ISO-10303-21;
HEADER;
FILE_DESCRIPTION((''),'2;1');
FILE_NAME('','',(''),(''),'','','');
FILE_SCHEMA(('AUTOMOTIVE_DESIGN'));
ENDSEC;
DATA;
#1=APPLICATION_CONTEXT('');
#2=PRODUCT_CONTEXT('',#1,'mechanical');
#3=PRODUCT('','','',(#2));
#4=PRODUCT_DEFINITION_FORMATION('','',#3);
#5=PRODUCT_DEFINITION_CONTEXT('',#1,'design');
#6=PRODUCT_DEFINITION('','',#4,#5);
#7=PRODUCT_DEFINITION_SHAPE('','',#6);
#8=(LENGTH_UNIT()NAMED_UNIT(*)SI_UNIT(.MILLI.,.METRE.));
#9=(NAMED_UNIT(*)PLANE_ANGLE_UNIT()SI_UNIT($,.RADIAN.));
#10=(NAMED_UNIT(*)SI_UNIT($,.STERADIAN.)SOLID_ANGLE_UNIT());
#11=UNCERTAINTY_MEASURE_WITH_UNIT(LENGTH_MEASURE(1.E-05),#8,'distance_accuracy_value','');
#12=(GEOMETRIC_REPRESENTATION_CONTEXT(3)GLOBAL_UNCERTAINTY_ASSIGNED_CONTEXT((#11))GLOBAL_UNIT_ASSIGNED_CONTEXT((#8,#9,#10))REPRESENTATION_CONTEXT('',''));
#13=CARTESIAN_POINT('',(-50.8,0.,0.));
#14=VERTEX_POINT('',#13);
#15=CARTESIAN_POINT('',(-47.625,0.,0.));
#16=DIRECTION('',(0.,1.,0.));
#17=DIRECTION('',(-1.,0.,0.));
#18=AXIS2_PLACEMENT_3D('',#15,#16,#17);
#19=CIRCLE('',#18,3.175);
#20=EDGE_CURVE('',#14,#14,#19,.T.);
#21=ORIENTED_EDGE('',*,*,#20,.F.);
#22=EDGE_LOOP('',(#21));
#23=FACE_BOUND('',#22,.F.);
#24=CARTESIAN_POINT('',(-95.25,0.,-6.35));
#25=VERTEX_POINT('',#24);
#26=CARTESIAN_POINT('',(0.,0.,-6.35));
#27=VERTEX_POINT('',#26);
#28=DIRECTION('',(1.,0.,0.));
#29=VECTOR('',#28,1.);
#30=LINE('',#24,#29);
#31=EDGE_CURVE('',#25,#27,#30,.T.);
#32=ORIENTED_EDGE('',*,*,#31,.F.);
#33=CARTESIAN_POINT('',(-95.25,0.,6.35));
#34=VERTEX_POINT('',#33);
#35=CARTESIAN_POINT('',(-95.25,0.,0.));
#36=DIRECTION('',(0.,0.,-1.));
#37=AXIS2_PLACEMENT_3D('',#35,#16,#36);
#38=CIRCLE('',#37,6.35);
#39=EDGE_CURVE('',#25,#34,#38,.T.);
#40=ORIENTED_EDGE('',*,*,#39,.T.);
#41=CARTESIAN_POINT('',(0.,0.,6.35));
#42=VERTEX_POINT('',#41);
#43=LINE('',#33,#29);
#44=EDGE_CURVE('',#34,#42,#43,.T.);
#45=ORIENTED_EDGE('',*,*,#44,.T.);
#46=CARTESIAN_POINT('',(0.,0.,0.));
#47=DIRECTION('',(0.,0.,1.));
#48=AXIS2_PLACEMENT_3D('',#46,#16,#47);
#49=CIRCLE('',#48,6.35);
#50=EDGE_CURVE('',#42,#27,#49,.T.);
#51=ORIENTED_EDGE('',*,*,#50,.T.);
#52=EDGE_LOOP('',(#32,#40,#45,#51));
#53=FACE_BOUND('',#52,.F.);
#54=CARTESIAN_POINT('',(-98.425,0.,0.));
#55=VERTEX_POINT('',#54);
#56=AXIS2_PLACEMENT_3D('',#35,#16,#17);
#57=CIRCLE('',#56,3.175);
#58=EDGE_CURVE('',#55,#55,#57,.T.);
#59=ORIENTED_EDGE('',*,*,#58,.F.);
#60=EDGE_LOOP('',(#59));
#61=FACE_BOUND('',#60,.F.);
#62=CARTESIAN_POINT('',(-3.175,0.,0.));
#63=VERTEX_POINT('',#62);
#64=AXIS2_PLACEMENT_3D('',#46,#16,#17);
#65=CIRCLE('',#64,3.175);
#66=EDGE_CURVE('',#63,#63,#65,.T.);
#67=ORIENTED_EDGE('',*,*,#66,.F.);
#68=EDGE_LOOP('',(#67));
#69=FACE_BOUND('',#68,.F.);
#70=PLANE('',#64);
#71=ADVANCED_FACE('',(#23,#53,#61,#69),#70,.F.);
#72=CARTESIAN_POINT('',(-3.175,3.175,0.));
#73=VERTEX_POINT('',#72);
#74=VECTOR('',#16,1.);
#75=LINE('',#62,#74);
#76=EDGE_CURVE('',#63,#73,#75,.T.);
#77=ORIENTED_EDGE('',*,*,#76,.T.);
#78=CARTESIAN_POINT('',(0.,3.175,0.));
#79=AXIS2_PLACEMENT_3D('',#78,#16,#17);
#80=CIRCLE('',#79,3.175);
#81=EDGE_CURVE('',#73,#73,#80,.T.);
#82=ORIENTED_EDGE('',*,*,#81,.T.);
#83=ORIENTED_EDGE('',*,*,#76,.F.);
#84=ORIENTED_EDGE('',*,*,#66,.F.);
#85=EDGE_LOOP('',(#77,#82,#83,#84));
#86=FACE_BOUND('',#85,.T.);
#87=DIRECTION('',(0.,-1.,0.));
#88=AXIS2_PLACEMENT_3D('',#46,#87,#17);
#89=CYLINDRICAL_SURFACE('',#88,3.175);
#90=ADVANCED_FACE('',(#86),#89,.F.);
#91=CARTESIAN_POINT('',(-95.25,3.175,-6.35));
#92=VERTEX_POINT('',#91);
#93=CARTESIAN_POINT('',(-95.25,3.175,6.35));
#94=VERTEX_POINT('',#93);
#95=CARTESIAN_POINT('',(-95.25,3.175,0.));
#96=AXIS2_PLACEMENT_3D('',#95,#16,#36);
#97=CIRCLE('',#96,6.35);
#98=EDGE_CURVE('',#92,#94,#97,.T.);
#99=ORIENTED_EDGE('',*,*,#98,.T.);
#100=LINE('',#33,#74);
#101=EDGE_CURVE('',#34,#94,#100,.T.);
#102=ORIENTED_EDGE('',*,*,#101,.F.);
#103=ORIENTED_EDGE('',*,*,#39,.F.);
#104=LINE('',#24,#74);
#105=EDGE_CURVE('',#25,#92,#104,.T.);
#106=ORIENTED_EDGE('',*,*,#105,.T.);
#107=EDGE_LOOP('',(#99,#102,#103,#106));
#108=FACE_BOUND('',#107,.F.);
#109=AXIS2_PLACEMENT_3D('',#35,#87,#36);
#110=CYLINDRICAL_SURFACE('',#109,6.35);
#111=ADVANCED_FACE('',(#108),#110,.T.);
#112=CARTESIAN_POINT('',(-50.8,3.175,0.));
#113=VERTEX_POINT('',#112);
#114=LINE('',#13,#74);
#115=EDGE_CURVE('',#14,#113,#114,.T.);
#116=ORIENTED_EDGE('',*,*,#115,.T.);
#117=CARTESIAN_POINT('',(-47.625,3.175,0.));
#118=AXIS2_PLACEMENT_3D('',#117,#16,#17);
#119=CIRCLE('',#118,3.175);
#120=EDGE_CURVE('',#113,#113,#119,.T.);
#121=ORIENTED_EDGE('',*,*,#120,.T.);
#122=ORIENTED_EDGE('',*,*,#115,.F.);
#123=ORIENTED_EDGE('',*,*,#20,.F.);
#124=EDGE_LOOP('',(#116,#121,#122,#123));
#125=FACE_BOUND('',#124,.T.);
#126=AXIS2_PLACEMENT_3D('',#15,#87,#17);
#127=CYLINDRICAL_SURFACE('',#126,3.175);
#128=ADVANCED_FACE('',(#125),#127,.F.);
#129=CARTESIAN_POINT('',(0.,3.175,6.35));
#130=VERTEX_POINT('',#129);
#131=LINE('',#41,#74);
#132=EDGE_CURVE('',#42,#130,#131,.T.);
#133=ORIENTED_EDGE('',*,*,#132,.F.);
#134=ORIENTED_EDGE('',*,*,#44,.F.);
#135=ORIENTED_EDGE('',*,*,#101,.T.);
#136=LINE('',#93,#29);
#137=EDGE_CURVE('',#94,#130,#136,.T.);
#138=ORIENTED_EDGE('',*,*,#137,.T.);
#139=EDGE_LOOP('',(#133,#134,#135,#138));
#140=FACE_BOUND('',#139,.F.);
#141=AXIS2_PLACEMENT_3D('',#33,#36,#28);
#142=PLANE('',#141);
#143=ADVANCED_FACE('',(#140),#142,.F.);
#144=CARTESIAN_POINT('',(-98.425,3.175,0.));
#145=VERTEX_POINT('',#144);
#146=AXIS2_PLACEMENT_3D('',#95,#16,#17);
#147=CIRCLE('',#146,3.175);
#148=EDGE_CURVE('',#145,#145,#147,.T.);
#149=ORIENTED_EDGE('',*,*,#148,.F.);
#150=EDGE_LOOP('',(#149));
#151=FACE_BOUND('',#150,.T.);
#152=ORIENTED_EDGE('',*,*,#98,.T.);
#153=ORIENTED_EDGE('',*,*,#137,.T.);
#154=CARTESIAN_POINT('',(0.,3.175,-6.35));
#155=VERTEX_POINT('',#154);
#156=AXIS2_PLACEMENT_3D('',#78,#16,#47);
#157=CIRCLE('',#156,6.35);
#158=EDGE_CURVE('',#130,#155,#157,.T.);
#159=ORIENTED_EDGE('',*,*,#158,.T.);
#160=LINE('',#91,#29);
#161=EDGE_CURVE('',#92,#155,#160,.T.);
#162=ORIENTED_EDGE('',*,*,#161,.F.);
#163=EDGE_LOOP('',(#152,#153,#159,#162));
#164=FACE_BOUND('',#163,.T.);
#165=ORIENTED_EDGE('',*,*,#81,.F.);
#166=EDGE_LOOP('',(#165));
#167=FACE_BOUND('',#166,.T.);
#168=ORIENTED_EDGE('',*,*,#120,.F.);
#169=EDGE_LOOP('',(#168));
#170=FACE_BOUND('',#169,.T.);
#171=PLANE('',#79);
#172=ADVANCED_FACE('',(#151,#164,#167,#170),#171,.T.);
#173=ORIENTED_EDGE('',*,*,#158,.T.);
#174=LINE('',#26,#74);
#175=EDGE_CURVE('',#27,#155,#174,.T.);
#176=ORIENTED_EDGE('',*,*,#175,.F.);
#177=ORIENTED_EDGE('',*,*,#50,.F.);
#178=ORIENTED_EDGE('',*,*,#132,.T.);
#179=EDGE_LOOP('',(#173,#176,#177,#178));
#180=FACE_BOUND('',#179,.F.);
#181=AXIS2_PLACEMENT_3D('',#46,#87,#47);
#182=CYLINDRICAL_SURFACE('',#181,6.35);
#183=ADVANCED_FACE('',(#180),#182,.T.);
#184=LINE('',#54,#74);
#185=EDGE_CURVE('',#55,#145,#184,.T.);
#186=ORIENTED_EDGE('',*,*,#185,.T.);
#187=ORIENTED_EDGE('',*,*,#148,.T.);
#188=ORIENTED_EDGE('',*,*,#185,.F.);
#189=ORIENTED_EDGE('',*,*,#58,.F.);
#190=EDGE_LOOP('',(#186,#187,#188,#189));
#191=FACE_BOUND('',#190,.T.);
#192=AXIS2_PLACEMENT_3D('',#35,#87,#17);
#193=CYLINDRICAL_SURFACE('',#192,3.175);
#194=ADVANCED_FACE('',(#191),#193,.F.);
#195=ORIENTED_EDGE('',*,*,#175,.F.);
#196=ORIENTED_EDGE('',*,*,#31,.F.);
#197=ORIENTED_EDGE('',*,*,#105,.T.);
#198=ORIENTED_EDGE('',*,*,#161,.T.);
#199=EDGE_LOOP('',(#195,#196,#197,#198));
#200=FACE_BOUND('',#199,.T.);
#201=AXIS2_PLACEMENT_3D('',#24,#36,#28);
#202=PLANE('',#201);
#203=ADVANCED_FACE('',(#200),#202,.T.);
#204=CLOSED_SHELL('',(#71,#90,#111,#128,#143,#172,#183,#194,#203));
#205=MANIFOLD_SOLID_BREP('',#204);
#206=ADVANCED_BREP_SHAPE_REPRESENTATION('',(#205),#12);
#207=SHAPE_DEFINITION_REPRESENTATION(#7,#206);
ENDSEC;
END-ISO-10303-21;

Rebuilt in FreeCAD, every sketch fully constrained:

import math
import FreeCAD as App
import Part
import Sketcher

V = App.Vector
Q = App.Units.Quantity

doc = App.newDocument("Part")
body = doc.addObject("PartDesign::Body", "Body")

sketch1 = doc.addObject("Sketcher::SketchObject", "Sketch")
body.addObject(sketch1)
sketch1.AttachmentSupport = (doc.XZ_Plane, [""])
sketch1.MapMode = "FlatFace"
sketch1.addGeometry(Part.ArcOfCircle(Part.Circle(V(-95.2, 0, 0), V(0, 0, 1), 6.3), math.radians(90), math.radians(270)), False)
sketch1.addGeometry(Part.LineSegment(V(-95.2, 6.3, 0), V(0, 6.3, 0)), False)
sketch1.addGeometry(Part.ArcOfCircle(Part.Circle(V(0, 0, 0), V(0, 0, 1), 6.3), math.radians(-90), math.radians(90)), False)
sketch1.addGeometry(Part.LineSegment(V(0, -6.3, 0), V(-95.2, -6.3, 0)), False)
sketch1.addGeometry(Part.Circle(V(0, 0, 0), V(0, 0, 1), 3.2), False)
sketch1.addGeometry(Part.Circle(V(-47.6, 0, 0), V(0, 0, 1), 3.2), False)
sketch1.addGeometry(Part.Circle(V(-95.2, 0, 0), V(0, 0, 1), 3.2), False)
sketch1.addConstraint(Sketcher.Constraint("Tangent", 0, 1, 1, 1))
sketch1.addConstraint(Sketcher.Constraint("Tangent", 1, 2, 2, 2))
sketch1.addConstraint(Sketcher.Constraint("Tangent", 2, 1, 3, 1))
sketch1.addConstraint(Sketcher.Constraint("Tangent", 3, 2, 0, 2))
sketch1.addConstraint(Sketcher.Constraint("Horizontal", 1))
sketch1.addConstraint(Sketcher.Constraint("Horizontal", 3))
sketch1.addConstraint(Sketcher.Constraint("Coincident", 2, 3, -1, 1))
sketch1.addConstraint(Sketcher.Constraint("Coincident", 4, 3, -1, 1))
sketch1.addConstraint(Sketcher.Constraint("Coincident", 6, 3, 0, 3))
sketch1.addConstraint(Sketcher.Constraint("Equal", 4, 5))
sketch1.addConstraint(Sketcher.Constraint("Equal", 5, 6))
sketch1.addConstraint(Sketcher.Constraint("PointOnObject", 5, 3, -1))
sketch1.addConstraint(Sketcher.Constraint("Diameter", 4, Q("0.25 in")))
sketch1.addConstraint(Sketcher.Constraint("Radius", 0, Q("0.25 in")))
sketch1.addConstraint(Sketcher.Constraint("DistanceX", 1, 1, 1, 2, Q("3.75 in")))
sketch1.addConstraint(Sketcher.Constraint("DistanceX", 5, 3, -1, 1, Q("1.875 in")))
pad1 = doc.addObject("PartDesign::Pad", "Pad")
body.addObject(pad1)
pad1.Profile = sketch1
pad1.Length = Q("0.125 in")
pad1.Reversed = True

doc.recompute()
